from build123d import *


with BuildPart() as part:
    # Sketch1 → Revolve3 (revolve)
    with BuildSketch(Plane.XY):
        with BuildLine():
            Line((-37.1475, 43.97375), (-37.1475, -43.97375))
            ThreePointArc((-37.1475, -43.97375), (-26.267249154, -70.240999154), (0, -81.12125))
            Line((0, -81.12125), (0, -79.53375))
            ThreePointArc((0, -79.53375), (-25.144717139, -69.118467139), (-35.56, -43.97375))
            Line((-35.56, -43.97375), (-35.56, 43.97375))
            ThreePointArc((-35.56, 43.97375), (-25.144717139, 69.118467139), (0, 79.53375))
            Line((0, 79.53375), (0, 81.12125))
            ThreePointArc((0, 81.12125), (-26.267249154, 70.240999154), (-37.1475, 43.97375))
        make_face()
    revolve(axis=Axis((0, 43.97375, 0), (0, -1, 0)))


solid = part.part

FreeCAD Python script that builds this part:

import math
import FreeCAD as App
import Part
import Sketcher
from FreeCAD import Vector
Q = App.Units.Quantity

doc = App.newDocument("Part")
body = doc.addObject("PartDesign::Body", "Body")

# Sketch on XY plane
sketch1 = body.newObject("Sketcher::SketchObject", "Sketch")
sketch1.AttachmentSupport = (doc.getObject("XY_Plane"), [""])
sketch1.MapMode = "FlatFace"
sketch1.addGeometry([
    Part.LineSegment(Vector(-37.1475, 43.97375, 0), Vector(-37.1475, -43.97375, 0)),  # 0
    Part.ArcOfCircle(Part.Circle(Vector(0, -43.97375, 0), Vector(0, 0, 1), 37.1475), math.radians(180), math.radians(270)),  # 1
    Part.LineSegment(Vector(0, -81.12125, 0), Vector(0, -79.53375, 0)),  # 2
    Part.ArcOfCircle(Part.Circle(Vector(0, -43.97375, 0), Vector(0, 0, 1), 35.56), math.radians(180), math.radians(270)),  # 3
    Part.LineSegment(Vector(-35.56, -43.97375, 0), Vector(-35.56, 43.97375, 0)),  # 4
    Part.ArcOfCircle(Part.Circle(Vector(0, 43.97375, 0), Vector(0, 0, 1), 35.56), math.radians(90), math.radians(180)),  # 5
    Part.LineSegment(Vector(0, 79.53375, 0), Vector(0, 81.12125, 0)),  # 6
    Part.ArcOfCircle(Part.Circle(Vector(0, 43.97375, 0), Vector(0, 0, 1), 37.1475), math.radians(90), math.radians(180)),  # 7
], False)
sketch1.addConstraint([
    Sketcher.Constraint("Tangent", 0, 2, 1, 1),
    Sketcher.Constraint("Coincident", 1, 2, 2, 1),
    Sketcher.Constraint("Coincident", 2, 2, 3, 2),
    Sketcher.Constraint("Tangent", 3, 1, 4, 1),
    Sketcher.Constraint("Tangent", 4, 2, 5, 2),
    Sketcher.Constraint("Coincident", 5, 1, 6, 1),
    Sketcher.Constraint("Coincident", 6, 2, 7, 1),
    Sketcher.Constraint("Tangent", 7, 2, 0, 1),
    Sketcher.Constraint("Vertical", 0),
    Sketcher.Constraint("Vertical", 2),
    Sketcher.Constraint("Vertical", 4),
    Sketcher.Constraint("Vertical", 6),
    Sketcher.Constraint("Coincident", 3, 3, 1, 3),
    Sketcher.Constraint("Coincident", 7, 3, 5, 3),
    Sketcher.Constraint("Equal", 3, 5),
    Sketcher.Constraint("Symmetric", 1, 3, 5, 3, -1, 1),
    Sketcher.Constraint("PointOnObject", 1, 2, -2),
    Sketcher.Constraint("PointOnObject", 5, 1, -2),
    Sketcher.Constraint("Radius", 3, Q("1.4 in")),
    Sketcher.Constraint("Radius", 1, Q("1.4625 in")),
    Sketcher.Constraint("DistanceY", 0, 2, 0, 1, Q("3.4625 in")),
])
revolution = body.newObject("PartDesign::Revolution", "Revolution")
revolution.Profile = sketch1
revolution.ReferenceAxis = (sketch1, ["V_Axis"])
revolution.Angle = 360

doc.recompute()
